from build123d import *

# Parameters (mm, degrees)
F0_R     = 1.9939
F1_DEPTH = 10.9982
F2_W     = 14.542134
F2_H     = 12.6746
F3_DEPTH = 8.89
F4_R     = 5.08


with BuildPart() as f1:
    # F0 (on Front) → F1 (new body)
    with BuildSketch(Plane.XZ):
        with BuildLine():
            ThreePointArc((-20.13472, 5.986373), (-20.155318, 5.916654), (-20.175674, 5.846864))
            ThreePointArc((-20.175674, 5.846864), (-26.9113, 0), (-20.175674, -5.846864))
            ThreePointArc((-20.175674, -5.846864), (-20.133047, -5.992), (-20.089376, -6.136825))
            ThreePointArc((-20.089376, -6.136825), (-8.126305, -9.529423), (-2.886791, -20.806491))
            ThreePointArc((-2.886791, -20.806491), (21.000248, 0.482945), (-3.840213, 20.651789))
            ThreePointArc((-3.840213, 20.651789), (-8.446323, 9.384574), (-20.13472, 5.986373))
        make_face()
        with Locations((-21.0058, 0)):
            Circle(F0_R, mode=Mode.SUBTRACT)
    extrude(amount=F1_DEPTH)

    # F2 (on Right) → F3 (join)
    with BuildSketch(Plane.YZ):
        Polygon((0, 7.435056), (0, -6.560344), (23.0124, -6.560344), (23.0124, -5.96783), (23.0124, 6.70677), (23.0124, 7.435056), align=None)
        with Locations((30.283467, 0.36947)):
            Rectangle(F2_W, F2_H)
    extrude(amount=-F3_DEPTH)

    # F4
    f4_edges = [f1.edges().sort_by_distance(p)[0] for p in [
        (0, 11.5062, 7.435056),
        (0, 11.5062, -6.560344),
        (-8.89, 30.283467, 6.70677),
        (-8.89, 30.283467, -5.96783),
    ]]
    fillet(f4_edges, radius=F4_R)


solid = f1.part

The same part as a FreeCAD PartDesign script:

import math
import FreeCAD as App
import Part
import Sketcher

V = App.Vector
Q = App.Units.Quantity


def edges_at(feature, points):
    """Names of the edges that pass closest to the given points."""
    edges = feature.Shape.Edges
    near = lambda p: min(range(len(edges)), key=lambda i: edges[i].distToShape(Part.Vertex(*p))[0])
    return sorted({f"Edge{near(p) + 1}" for p in points})

doc = App.newDocument("Part")
params = doc.addObject("Spreadsheet::Sheet", "Params")
for row, (alias, value) in enumerate([
    ("sketch1_diameter", "0.157 in"),
    ("sketch1_radius", "0.827 in"),
    ("sketch1_radius2", "0.551 in"),
    ("pad1_length", "0.433 in"),
    ("sketch2_width", "0.906 in"),
    ("sketch2_height", "0.551 in"),
    ("sketch2_height2", "0.499 in"),
    ("pad2_length", "0.35 in"),
    ("fillet_radius", "0.2 in"),
], start=1):
    params.set(f"A{row}", alias)
    params.set(f"B{row}", "=" + value)
    params.setAlias(f"B{row}", alias)

body = doc.addObject("PartDesign::Body", "Body")

sketch1 = body.newObject("Sketcher::SketchObject", "Sketch")
sketch1.AttachmentSupport = (doc.getObject("XZ_Plane"), [""])
sketch1.MapMode = "FlatFace"
sketch1.addGeometry([
    Part.ArcOfCircle(Part.Circle(V(-0.05, 0.01, 0), V(0, 0, 1), 20.96), math.radians(163.44), math.radians(163.84)),
    Part.ArcOfCircle(Part.Circle(V(-21.01, 0, 0), V(0, 0, 1), 5.91), math.radians(82), math.radians(278)),
    Part.ArcOfCircle(Part.Circle(V(0, 0, 0), V(0, 0, 1), 21), math.radians(-163.84), math.radians(-163.01)),
    Part.ArcOfCircle(Part.Circle(V(-17.81, -20.88, 0), V(0, 0, 1), 14.92), math.radians(0), math.radians(99)),
    Part.ArcOfCircle(Part.Circle(V(0, 0, 0), V(0, 0, 1), 21.01), math.radians(-98), math.radians(101)),
    Part.ArcOfCircle(Part.Circle(V(-17.81, 19.79, 0), V(0, 0, 1), 14), math.radians(-100), math.radians(4)),
    Part.Circle(V(-21.01, 0, 0), V(0, 0, 1), 1.99),
], False)
sketch1.addConstraint([
    Sketcher.Constraint("Coincident", 0, 2, 1, 1),
    Sketcher.Constraint("Coincident", 1, 2, 2, 1),
    Sketcher.Constraint("Coincident", 2, 2, 3, 2),
    Sketcher.Constraint("Coincident", 3, 1, 4, 1),
    Sketcher.Constraint("Coincident", 4, 2, 5, 2),
    Sketcher.Constraint("Coincident", 5, 1, 0, 1),
    Sketcher.Constraint("Coincident", 4, 3, -1, 1),
    Sketcher.Constraint("Coincident", 6, 3, 1, 3),
    Sketcher.Constraint("Symmetric", 0, 2, 1, 2, -1),
    Sketcher.Constraint("Vertical", 3, 3, 5, 3),
    Sketcher.Constraint("Diameter", 6, Q("0.157 in")),
    Sketcher.Constraint("Radius", 4, Q("0.827 in")),
    Sketcher.Constraint("Radius", 5, Q("0.551 in")),
    Sketcher.Constraint("Radius", 1, Q("0.2325 in")),
    Sketcher.Constraint("DistanceX", 1, 3, -1, 1, Q("0.827 in")),
    Sketcher.Constraint("Radius", 0, Q("20.955619 mm")),
    Sketcher.Constraint("Radius", 3, Q("14.922288 mm")),
    Sketcher.Constraint("Radius", 2, Q("21.004942 mm")),
    Sketcher.Constraint("DistanceY", 2, 3, 0, 3, Q("0.014299 mm")),
    Sketcher.Constraint("DistanceX", 3, 3, 0, 3, Q("17.760701 mm")),
    Sketcher.Constraint("DistanceX", 0, 2, 2, 2, Q("0.086298 mm")),
    Sketcher.Constraint("DistanceY", -1, 1, 0, 3, Q("0.01404 mm")),
    Sketcher.Constraint("DistanceX", 2, 3, -1, 1, Q("0.000818 mm")),
    Sketcher.Constraint("DistanceY", -1, 1, 5, 3, Q("19.787158 mm")),
])
sketch1.setExpression("Constraints[10]", "Params.sketch1_diameter")
sketch1.setExpression("Constraints[11]", "Params.sketch1_radius")
sketch1.setExpression("Constraints[12]", "Params.sketch1_radius2")
pad1 = body.newObject("PartDesign::Pad", "Pad")
pad1.Profile = sketch1
pad1.setExpression("Length", "Params.pad1_length")

sketch2 = body.newObject("Sketcher::SketchObject", "Sketch001")
sketch2.AttachmentSupport = (doc.getObject("YZ_Plane"), [""])
sketch2.MapMode = "FlatFace"
sketch2.addGeometry([
    Part.LineSegment(V(0, 7.4, 0), V(0, -6.6, 0)),
    Part.LineSegment(V(0, -6.6, 0), V(23, -6.6, 0)),
    Part.LineSegment(V(23, -6.6, 0), V(23, -6, 0)),
    Part.LineSegment(V(23, -6, 0), V(37.6, -6, 0)),
    Part.LineSegment(V(37.6, -6, 0), V(37.6, 6.7, 0)),
    Part.LineSegment(V(37.6, 6.7, 0), V(23, 6.7, 0)),
    Part.LineSegment(V(23, 6.7, 0), V(23, 7.4, 0)),
    Part.LineSegment(V(23, 7.4, 0), V(0, 7.4, 0)),
], False)
sketch2.addConstraint([
    Sketcher.Constraint("Coincident", 0, 2, 1, 1),
    Sketcher.Constraint("Coincident", 1, 2, 2, 1),
    Sketcher.Constraint("Coincident", 2, 2, 3, 1),
    Sketcher.Constraint("Coincident", 3, 2, 4, 1),
    Sketcher.Constraint("Coincident", 4, 2, 5, 1),
    Sketcher.Constraint("Coincident", 5, 2, 6, 1),
    Sketcher.Constraint("Coincident", 6, 2, 7, 1),
    Sketcher.Constraint("Coincident", 7, 2, 0, 1),
    Sketcher.Constraint("Vertical", 0),
    Sketcher.Constraint("Horizontal", 1),
    Sketcher.Constraint("Vertical", 2),
    Sketcher.Constraint("Horizontal", 3),
    Sketcher.Constraint("Vertical", 4),
    Sketcher.Constraint("Horizontal", 5),
    Sketcher.Constraint("Vertical", 6),
    Sketcher.Constraint("Horizontal", 7),
    Sketcher.Constraint("PointOnObject", 0, 2, -2),
    Sketcher.Constraint("Vertical", 2, 2, 5, 2),
    Sketcher.Constraint("DistanceX", 1, 1, 1, 2, Q("0.906 in")),
    Sketcher.Constraint("DistanceY", 0, 2, 0, 1, Q("0.551 in")),
    Sketcher.Constraint("DistanceY", 4, 1, 4, 2, Q("0.499 in")),
    Sketcher.Constraint("DistanceX", 3, 1, 3, 2, Q("14.542134 mm")),
    Sketcher.Constraint("DistanceY", 2, 1, 2, 2, Q("0.592514 mm")),
    Sketcher.Constraint("DistanceY", 2, 2, -1, 1, Q("5.96783 mm")),
])
sketch2.setExpression("Constraints[18]", "Params.sketch2_width")
sketch2.setExpression("Constraints[19]", "Params.sketch2_height")
sketch2.setExpression("Constraints[20]", "Params.sketch2_height2")
pad2 = body.newObject("PartDesign::Pad", "Pad001")
pad2.Profile = sketch2
pad2.setExpression("Length", "Params.pad2_length")
pad2.Reversed = True
doc.recompute()

fillet = body.newObject("PartDesign::Fillet", "Fillet")
fillet.Base = (pad2, edges_at(pad2, [
    (0, 11.506, 7.435),
    (0, 11.506, -6.56),
    (-8.89, 30.283, 6.707),
    (-8.89, 30.283, -5.968),
]))
fillet.setExpression("Radius", "Params.fillet_radius")

doc.recompute()
